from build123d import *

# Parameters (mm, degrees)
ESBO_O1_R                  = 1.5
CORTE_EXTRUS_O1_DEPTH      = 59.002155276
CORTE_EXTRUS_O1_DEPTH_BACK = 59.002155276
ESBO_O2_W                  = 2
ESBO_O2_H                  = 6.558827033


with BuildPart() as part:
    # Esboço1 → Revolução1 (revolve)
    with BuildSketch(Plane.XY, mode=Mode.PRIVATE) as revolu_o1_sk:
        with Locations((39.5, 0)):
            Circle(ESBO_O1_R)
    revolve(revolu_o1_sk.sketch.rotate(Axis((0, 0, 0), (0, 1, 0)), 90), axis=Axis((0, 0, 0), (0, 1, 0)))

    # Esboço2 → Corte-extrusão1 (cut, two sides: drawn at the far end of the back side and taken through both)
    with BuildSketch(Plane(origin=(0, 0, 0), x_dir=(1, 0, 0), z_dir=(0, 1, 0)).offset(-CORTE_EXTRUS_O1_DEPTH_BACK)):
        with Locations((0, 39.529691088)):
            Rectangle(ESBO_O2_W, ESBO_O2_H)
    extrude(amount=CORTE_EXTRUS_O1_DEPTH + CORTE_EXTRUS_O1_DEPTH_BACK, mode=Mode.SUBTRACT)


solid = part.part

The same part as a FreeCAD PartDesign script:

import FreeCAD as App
import Part
import Sketcher

V = App.Vector
Q = App.Units.Quantity


def add_polygon(sketch, points):
    """Adds a closed chain of lines whose ends are joined by coincident constraints."""
    first, n = sketch.GeometryCount, len(points)
    for a, b in zip(points, points[1:] + points[:1]):
        sketch.addGeometry(Part.LineSegment(App.Vector(*a, 0), App.Vector(*b, 0)), False)
    for i in range(n):
        sketch.addConstraint(Sketcher.Constraint("Coincident", first + i, 2, first + (i + 1) % n, 1))

doc = App.newDocument("Part")
body = doc.addObject("PartDesign::Body", "Body")

# Sketch on XY plane
sketch1 = body.newObject("Sketcher::SketchObject", "Sketch")
sketch1.AttachmentSupport = (doc.getObject("XY_Plane"), [""])
sketch1.MapMode = "FlatFace"
sketch1.addGeometry(Part.Circle(V(39.5, 0, 0), V(0, 0, 1), 1.5), False)
sketch1.addConstraint([
    Sketcher.Constraint("PointOnObject", 0, 3, -1),
    Sketcher.Constraint("Diameter", 0, Q("3 mm")),
    Sketcher.Constraint("DistanceX", -1, 1, 0, 3, Q("39.5 mm")),
])
revolution = body.newObject("PartDesign::Revolution", "Revolution")
revolution.Profile = sketch1
revolution.ReferenceAxis = (sketch1, ["V_Axis"])
revolution.Angle = 360

# Sketch on XZ plane
sketch2 = body.newObject("Sketcher::SketchObject", "Sketch001")
sketch2.AttachmentSupport = (doc.getObject("XZ_Plane"), [""])
sketch2.MapMode = "FlatFace"
add_polygon(sketch2, [(-1, -42.809105), (-1, -36.250278), (1, -36.250278), (1, -42.809105)])  # lines 0-3
sketch2.addConstraint([
    Sketcher.Constraint("Vertical", 0),
    Sketcher.Constraint("Horizontal", 1),
    Sketcher.Constraint("Vertical", 2),
    Sketcher.Constraint("Horizontal", 3),
    Sketcher.Constraint("DistanceX", 1, 1, 1, 2, Q("2 mm")),
    Sketcher.Constraint("DistanceX", 0, 2, -1, 1, Q("1 mm")),
    Sketcher.Constraint("DistanceY", 0, 1, 0, 2, Q("6.558827 mm")),
    Sketcher.Constraint("DistanceY", 0, 2, -1, 1, Q("36.250278 mm")),
])
pocket1 = body.newObject("PartDesign::Pocket", "Pocket")
pocket1.Profile = sketch2
pocket1.Type = "ThroughAll"
pocket1.Midplane = True

doc.recompute()
